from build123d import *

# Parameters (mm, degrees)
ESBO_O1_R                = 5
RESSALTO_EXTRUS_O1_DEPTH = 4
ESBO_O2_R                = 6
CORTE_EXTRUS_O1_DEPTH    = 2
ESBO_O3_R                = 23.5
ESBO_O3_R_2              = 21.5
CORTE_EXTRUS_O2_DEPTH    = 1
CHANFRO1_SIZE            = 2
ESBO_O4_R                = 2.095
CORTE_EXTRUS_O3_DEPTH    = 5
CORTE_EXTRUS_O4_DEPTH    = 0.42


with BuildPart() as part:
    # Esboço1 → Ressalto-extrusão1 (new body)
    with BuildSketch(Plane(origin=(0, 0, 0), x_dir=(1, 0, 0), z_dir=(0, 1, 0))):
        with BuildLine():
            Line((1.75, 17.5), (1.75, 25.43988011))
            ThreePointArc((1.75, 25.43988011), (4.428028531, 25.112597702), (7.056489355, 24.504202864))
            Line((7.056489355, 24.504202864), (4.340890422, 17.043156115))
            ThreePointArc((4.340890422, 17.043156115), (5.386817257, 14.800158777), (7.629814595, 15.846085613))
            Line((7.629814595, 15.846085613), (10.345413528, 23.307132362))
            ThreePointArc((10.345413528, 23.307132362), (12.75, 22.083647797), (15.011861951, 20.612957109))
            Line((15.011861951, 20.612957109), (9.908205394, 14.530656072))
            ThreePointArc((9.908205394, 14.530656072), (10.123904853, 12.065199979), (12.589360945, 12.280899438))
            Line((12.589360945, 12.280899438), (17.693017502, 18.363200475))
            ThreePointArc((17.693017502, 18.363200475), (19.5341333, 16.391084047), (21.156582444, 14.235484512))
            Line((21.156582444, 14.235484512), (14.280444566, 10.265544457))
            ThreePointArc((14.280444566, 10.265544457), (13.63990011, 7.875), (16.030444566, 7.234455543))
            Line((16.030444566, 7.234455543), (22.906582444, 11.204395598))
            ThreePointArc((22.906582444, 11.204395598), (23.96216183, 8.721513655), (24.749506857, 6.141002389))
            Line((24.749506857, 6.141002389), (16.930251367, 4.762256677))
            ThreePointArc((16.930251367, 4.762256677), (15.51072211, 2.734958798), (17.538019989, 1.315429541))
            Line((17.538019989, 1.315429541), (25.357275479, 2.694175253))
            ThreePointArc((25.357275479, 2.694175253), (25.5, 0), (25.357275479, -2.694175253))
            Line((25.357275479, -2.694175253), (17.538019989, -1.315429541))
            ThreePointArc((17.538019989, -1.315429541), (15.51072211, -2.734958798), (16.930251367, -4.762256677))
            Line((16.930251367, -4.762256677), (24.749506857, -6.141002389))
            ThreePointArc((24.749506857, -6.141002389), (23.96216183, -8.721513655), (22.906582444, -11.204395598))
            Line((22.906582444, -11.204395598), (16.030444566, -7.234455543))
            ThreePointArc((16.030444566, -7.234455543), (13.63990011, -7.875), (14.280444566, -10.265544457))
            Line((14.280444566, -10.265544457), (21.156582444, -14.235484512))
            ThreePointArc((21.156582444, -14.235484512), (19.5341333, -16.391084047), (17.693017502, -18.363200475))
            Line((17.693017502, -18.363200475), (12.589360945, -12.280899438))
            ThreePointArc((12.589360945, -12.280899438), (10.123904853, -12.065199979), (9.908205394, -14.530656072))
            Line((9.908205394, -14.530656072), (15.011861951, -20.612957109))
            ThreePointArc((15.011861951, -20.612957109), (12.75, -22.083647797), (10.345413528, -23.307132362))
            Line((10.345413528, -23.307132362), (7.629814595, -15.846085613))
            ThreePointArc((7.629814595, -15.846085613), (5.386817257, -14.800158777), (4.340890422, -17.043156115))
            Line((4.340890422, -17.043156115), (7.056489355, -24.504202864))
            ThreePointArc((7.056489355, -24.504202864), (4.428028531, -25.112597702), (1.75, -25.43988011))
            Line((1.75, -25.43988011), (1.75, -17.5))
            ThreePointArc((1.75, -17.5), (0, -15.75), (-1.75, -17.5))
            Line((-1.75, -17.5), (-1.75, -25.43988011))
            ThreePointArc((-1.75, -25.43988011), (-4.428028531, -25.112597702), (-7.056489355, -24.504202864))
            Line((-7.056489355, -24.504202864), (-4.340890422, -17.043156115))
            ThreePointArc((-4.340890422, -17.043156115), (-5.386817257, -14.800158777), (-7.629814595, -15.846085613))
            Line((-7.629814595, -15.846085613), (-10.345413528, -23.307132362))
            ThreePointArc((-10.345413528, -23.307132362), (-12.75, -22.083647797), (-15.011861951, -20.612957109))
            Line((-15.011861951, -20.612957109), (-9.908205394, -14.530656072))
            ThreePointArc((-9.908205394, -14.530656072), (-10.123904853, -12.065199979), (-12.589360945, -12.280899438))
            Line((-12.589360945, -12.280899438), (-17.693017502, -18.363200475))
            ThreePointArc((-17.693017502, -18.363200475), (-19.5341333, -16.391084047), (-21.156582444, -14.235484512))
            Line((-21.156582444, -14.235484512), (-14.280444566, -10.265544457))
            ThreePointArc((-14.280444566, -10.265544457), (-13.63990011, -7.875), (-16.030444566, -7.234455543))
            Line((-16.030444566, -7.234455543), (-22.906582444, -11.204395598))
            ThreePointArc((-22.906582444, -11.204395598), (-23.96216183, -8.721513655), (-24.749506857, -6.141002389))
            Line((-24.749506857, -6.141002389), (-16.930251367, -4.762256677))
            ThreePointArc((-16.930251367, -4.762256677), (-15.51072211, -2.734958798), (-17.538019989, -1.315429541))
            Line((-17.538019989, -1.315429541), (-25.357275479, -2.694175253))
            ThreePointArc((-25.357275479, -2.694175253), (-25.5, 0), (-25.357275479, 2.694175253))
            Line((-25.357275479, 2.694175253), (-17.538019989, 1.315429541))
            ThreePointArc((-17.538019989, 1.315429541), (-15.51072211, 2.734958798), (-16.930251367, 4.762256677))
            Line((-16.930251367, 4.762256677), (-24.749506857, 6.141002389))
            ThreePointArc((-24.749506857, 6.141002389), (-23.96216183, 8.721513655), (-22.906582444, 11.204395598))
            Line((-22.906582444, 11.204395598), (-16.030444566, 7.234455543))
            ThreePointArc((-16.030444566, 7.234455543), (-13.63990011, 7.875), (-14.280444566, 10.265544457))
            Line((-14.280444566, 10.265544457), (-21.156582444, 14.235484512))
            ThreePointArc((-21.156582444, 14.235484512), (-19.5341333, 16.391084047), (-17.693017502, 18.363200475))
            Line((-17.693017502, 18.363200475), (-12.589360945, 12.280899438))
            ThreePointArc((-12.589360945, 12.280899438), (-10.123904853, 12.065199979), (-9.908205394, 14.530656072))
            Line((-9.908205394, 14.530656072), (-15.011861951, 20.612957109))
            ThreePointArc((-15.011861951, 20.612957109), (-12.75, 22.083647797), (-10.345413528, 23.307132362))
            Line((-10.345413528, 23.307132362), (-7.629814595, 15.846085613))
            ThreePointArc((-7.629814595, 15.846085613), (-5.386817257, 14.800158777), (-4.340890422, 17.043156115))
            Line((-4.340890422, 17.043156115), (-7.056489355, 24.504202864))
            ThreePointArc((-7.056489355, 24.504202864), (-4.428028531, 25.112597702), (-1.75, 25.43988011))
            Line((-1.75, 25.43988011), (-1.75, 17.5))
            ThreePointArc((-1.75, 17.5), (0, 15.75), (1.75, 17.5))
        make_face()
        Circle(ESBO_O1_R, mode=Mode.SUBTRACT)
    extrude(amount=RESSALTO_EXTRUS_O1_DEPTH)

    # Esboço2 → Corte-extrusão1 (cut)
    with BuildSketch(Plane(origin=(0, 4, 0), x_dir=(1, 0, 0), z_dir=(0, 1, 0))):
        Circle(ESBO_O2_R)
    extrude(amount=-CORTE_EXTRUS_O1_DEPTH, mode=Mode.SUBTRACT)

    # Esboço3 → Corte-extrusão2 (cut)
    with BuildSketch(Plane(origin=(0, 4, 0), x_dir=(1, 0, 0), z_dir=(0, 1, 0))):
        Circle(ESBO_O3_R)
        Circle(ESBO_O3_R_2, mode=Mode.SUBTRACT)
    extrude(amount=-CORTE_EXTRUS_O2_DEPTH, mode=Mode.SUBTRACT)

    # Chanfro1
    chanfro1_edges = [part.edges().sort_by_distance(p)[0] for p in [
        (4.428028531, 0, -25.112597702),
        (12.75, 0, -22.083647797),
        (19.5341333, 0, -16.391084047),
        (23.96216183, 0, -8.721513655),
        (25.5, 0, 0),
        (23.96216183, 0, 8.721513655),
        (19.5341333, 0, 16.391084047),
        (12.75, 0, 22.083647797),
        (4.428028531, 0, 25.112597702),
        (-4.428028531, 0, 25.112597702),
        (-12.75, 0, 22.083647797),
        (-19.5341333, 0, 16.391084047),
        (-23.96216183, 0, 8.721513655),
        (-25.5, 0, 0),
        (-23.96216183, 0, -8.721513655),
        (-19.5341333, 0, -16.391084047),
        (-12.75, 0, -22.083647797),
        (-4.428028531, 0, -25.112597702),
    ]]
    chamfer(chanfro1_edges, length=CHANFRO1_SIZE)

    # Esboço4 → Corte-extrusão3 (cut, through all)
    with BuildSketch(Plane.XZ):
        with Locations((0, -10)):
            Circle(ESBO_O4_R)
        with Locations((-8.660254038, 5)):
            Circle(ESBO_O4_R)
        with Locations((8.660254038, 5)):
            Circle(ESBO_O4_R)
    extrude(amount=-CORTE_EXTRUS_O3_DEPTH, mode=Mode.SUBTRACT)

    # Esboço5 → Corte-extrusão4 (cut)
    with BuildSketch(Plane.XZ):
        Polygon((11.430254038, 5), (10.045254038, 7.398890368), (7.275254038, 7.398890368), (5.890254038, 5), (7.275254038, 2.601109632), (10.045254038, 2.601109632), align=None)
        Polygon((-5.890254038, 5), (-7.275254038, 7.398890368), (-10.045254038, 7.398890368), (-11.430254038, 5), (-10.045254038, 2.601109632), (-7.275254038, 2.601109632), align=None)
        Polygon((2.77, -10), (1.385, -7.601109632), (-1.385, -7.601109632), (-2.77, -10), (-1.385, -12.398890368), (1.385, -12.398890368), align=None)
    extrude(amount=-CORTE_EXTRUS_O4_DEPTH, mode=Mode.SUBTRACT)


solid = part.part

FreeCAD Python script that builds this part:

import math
import FreeCAD as App
import Part
import Sketcher
Q = App.Units.Quantity


def edges_at(feature, points):
    """Names of the edges that pass closest to the given points."""
    edges = feature.Shape.Edges
    near = lambda p: min(range(len(edges)), key=lambda i: edges[i].distToShape(Part.Vertex(*p))[0])
    return sorted({f"Edge{near(p) + 1}" for p in points})

doc = App.newDocument("Part")
body = doc.addObject("PartDesign::Body", "Body")

# Sketch on XZ plane
sketch1 = doc.addObject("Sketcher::SketchObject", "Sketch")
body.addObject(sketch1)
sketch1.AttachmentSupport = (doc.XZ_Plane, [""])
sketch1.MapMode = "FlatFace"
sketch1.addGeometry(Part.LineSegment(App.Vector(1.75, -25.43988, 0), App.Vector(1.75, -17.5, 0)), False)
sketch1.addGeometry(Part.ArcOfCircle(Part.Circle(App.Vector(0, -17.5, 0), App.Vector(0, 0, 1), 1.75), math.radians(0), math.radians(180)), False)
sketch1.addGeometry(Part.LineSegment(App.Vector(-1.75, -17.5, 0), App.Vector(-1.75, -25.43988, 0)), False)
sketch1.addGeometry(Part.ArcOfCircle(Part.Circle(App.Vector(0, 0, 0), App.Vector(0, 0, 1), 25.5), math.radians(-106.064844), math.radians(-93.935156)), False)
sketch1.addGeometry(Part.LineSegment(App.Vector(-7.056489, -24.504203, 0), App.Vector(-4.34089, -17.043156, 0)), False)
sketch1.addGeometry(Part.ArcOfCircle(Part.Circle(App.Vector(-5.985353, -16.444621, 0), App.Vector(0, 0, 1), 1.75), math.radians(-20), math.radians(160)), False)
sketch1.addGeometry(Part.LineSegment(App.Vector(-7.629815, -15.846086, 0), App.Vector(-10.345414, -23.307132, 0)), False)
sketch1.addGeometry(Part.ArcOfCircle(Part.Circle(App.Vector(0, 0, 0), App.Vector(0, 0, 1), 25.5), math.radians(-126.064844), math.radians(-113.935156)), False)
sketch1.addGeometry(Part.LineSegment(App.Vector(-15.011862, -20.612957, 0), App.Vector(-9.908205, -14.530656, 0)), False)
sketch1.addGeometry(Part.ArcOfCircle(Part.Circle(App.Vector(-11.248783, -13.405778, 0), App.Vector(0, 0, 1), 1.75), math.radians(-40), math.radians(140)), False)
sketch1.addGeometry(Part.LineSegment(App.Vector(-12.589361, -12.280899, 0), App.Vector(-17.693018, -18.3632, 0)), False)
sketch1.addGeometry(Part.ArcOfCircle(Part.Circle(App.Vector(0, 0, 0), App.Vector(0, 0, 1), 25.5), math.radians(-146.064844), math.radians(-133.935156)), False)
sketch1.addGeometry(Part.LineSegment(App.Vector(-21.156582, -14.235485, 0), App.Vector(-14.280445, -10.265544, 0)), False)
sketch1.addGeometry(Part.ArcOfCircle(Part.Circle(App.Vector(-15.155445, -8.75, 0), App.Vector(0, 0, 1), 1.75), math.radians(-60), math.radians(120)), False)
sketch1.addGeometry(Part.LineSegment(App.Vector(-16.030445, -7.234456, 0), App.Vector(-22.906582, -11.204396, 0)), False)
sketch1.addGeometry(Part.ArcOfCircle(Part.Circle(App.Vector(0, 0, 0), App.Vector(0, 0, 1), 25.5), math.radians(-166.064844), math.radians(-153.935156)), False)
sketch1.addGeometry(Part.LineSegment(App.Vector(-24.749507, -6.141002, 0), App.Vector(-16.930251, -4.762257, 0)), False)
sketch1.addGeometry(Part.ArcOfCircle(Part.Circle(App.Vector(-17.234136, -3.038843, 0), App.Vector(0, 0, 1), 1.75), math.radians(-80), math.radians(100)), False)
sketch1.addGeometry(Part.LineSegment(App.Vector(-17.53802, -1.31543, 0), App.Vector(-25.357275, -2.694175, 0)), False)
sketch1.addGeometry(Part.ArcOfCircle(Part.Circle(App.Vector(0, 0, 0), App.Vector(0, 0, 1), 25.5), math.radians(173.935156), math.radians(186.064844)), False)
sketch1.addGeometry(Part.LineSegment(App.Vector(-25.357275, 2.694175, 0), App.Vector(-17.53802, 1.31543, 0)), False)
sketch1.addGeometry(Part.ArcOfCircle(Part.Circle(App.Vector(-17.234136, 3.038843, 0), App.Vector(0, 0, 1), 1.75), math.radians(-100), math.radians(80)), False)
sketch1.addGeometry(Part.LineSegment(App.Vector(-16.930251, 4.762257, 0), App.Vector(-24.749507, 6.141002, 0)), False)
sketch1.addGeometry(Part.ArcOfCircle(Part.Circle(App.Vector(0, 0, 0), App.Vector(0, 0, 1), 25.5), math.radians(153.935156), math.radians(166.064844)), False)
sketch1.addGeometry(Part.LineSegment(App.Vector(-22.906582, 11.204396, 0), App.Vector(-16.030445, 7.234456, 0)), False)
sketch1.addGeometry(Part.ArcOfCircle(Part.Circle(App.Vector(-15.155445, 8.75, 0), App.Vector(0, 0, 1), 1.75), math.radians(-120), math.radians(60)), False)
sketch1.addGeometry(Part.LineSegment(App.Vector(-14.280445, 10.265544, 0), App.Vector(-21.156582, 14.235485, 0)), False)
sketch1.addGeometry(Part.ArcOfCircle(Part.Circle(App.Vector(0, 0, 0), App.Vector(0, 0, 1), 25.5), math.radians(133.935156), math.radians(146.064844)), False)
sketch1.addGeometry(Part.LineSegment(App.Vector(-17.693018, 18.3632, 0), App.Vector(-12.589361, 12.280899, 0)), False)
sketch1.addGeometry(Part.ArcOfCircle(Part.Circle(App.Vector(-11.248783, 13.405778, 0), App.Vector(0, 0, 1), 1.75), math.radians(-140), math.radians(40)), False)
sketch1.addGeometry(Part.LineSegment(App.Vector(-9.908205, 14.530656, 0), App.Vector(-15.011862, 20.612957, 0)), False)
sketch1.addGeometry(Part.ArcOfCircle(Part.Circle(App.Vector(0, 0, 0), App.Vector(0, 0, 1), 25.5), math.radians(113.935156), math.radians(126.064844)), False)
sketch1.addGeometry(Part.LineSegment(App.Vector(-10.345414, 23.307132, 0), App.Vector(-7.629815, 15.846086, 0)), False)
sketch1.addGeometry(Part.ArcOfCircle(Part.Circle(App.Vector(-5.985353, 16.444621, 0), App.Vector(0, 0, 1), 1.75), math.radians(-160), math.radians(20)), False)
sketch1.addGeometry(Part.LineSegment(App.Vector(-4.34089, 17.043156, 0), App.Vector(-7.056489, 24.504203, 0)), False)
sketch1.addGeometry(Part.ArcOfCircle(Part.Circle(App.Vector(0, 0, 0), App.Vector(0, 0, 1), 25.5), math.radians(93.935156), math.radians(106.064844)), False)
sketch1.addGeometry(Part.LineSegment(App.Vector(-1.75, 25.43988, 0), App.Vector(-1.75, 17.5, 0)), False)
sketch1.addGeometry(Part.ArcOfCircle(Part.Circle(App.Vector(0, 17.5, 0), App.Vector(0, 0, 1), 1.75), math.radians(180), math.radians(360)), False)
sketch1.addGeometry(Part.LineSegment(App.Vector(1.75, 17.5, 0), App.Vector(1.75, 25.43988, 0)), False)
sketch1.addGeometry(Part.ArcOfCircle(Part.Circle(App.Vector(0, 0, 0), App.Vector(0, 0, 1), 25.5), math.radians(73.935156), math.radians(86.064844)), False)
sketch1.addGeometry(Part.LineSegment(App.Vector(7.056489, 24.504203, 0), App.Vector(4.34089, 17.043156, 0)), False)
sketch1.addGeometry(Part.ArcOfCircle(Part.Circle(App.Vector(5.985353, 16.444621, 0), App.Vector(0, 0, 1), 1.75), math.radians(160), math.radians(340)), False)
sketch1.addGeometry(Part.LineSegment(App.Vector(7.629815, 15.846086, 0), App.Vector(10.345414, 23.307132, 0)), False)
sketch1.addGeometry(Part.ArcOfCircle(Part.Circle(App.Vector(0, 0, 0), App.Vector(0, 0, 1), 25.5), math.radians(53.935156), math.radians(66.064844)), False)
sketch1.addGeometry(Part.LineSegment(App.Vector(15.011862, 20.612957, 0), App.Vector(9.908205, 14.530656, 0)), False)
sketch1.addGeometry(Part.ArcOfCircle(Part.Circle(App.Vector(11.248783, 13.405778, 0), App.Vector(0, 0, 1), 1.75), math.radians(140), math.radians(320)), False)
sketch1.addGeometry(Part.LineSegment(App.Vector(12.589361, 12.280899, 0), App.Vector(17.693018, 18.3632, 0)), False)
sketch1.addGeometry(Part.ArcOfCircle(Part.Circle(App.Vector(0, 0, 0), App.Vector(0, 0, 1), 25.5), math.radians(33.935156), math.radians(46.064844)), False)
sketch1.addGeometry(Part.LineSegment(App.Vector(21.156582, 14.235485, 0), App.Vector(14.280445, 10.265544, 0)), False)
sketch1.addGeometry(Part.ArcOfCircle(Part.Circle(App.Vector(15.155445, 8.75, 0), App.Vector(0, 0, 1), 1.75), math.radians(120), math.radians(300)), False)
sketch1.addGeometry(Part.LineSegment(App.Vector(16.030445, 7.234456, 0), App.Vector(22.906582, 11.204396, 0)), False)
sketch1.addGeometry(Part.ArcOfCircle(Part.Circle(App.Vector(0, 0, 0), App.Vector(0, 0, 1), 25.5), math.radians(13.935156), math.radians(26.064844)), False)
sketch1.addGeometry(Part.LineSegment(App.Vector(24.749507, 6.141002, 0), App.Vector(16.930251, 4.762257, 0)), False)
sketch1.addGeometry(Part.ArcOfCircle(Part.Circle(App.Vector(17.234136, 3.038843, 0), App.Vector(0, 0, 1), 1.75), math.radians(100), math.radians(280)), False)
sketch1.addGeometry(Part.LineSegment(App.Vector(17.53802, 1.31543, 0), App.Vector(25.357275, 2.694175, 0)), False)
sketch1.addGeometry(Part.ArcOfCircle(Part.Circle(App.Vector(0, 0, 0), App.Vector(0, 0, 1), 25.5), math.radians(-6.064844), math.radians(6.064844)), False)
sketch1.addGeometry(Part.LineSegment(App.Vector(25.357275, -2.694175, 0), App.Vector(17.53802, -1.31543, 0)), False)
sketch1.addGeometry(Part.ArcOfCircle(Part.Circle(App.Vector(17.234136, -3.038843, 0), App.Vector(0, 0, 1), 1.75), math.radians(80), math.radians(260)), False)
sketch1.addGeometry(Part.LineSegment(App.Vector(16.930251, -4.762257, 0), App.Vector(24.749507, -6.141002, 0)), False)
sketch1.addGeometry(Part.ArcOfCircle(Part.Circle(App.Vector(0, 0, 0), App.Vector(0, 0, 1), 25.5), math.radians(-26.064844), math.radians(-13.935156)), False)
sketch1.addGeometry(Part.LineSegment(App.Vector(22.906582, -11.204396, 0), App.Vector(16.030445, -7.234456, 0)), False)
sketch1.addGeometry(Part.ArcOfCircle(Part.Circle(App.Vector(15.155445, -8.75, 0), App.Vector(0, 0, 1), 1.75), math.radians(60), math.radians(240)), False)
sketch1.addGeometry(Part.LineSegment(App.Vector(14.280445, -10.265544, 0), App.Vector(21.156582, -14.235485, 0)), False)
sketch1.addGeometry(Part.ArcOfCircle(Part.Circle(App.Vector(0, 0, 0), App.Vector(0, 0, 1), 25.5), math.radians(-46.064844), math.radians(-33.935156)), False)
sketch1.addGeometry(Part.LineSegment(App.Vector(17.693018, -18.3632, 0), App.Vector(12.589361, -12.280899, 0)), False)
sketch1.addGeometry(Part.ArcOfCircle(Part.Circle(App.Vector(11.248783, -13.405778, 0), App.Vector(0, 0, 1), 1.75), math.radians(40), math.radians(220)), False)
sketch1.addGeometry(Part.LineSegment(App.Vector(9.908205, -14.530656, 0), App.Vector(15.011862, -20.612957, 0)), False)
sketch1.addGeometry(Part.ArcOfCircle(Part.Circle(App.Vector(0, 0, 0), App.Vector(0, 0, 1), 25.5), math.radians(-66.064844), math.radians(-53.935156)), False)
sketch1.addGeometry(Part.LineSegment(App.Vector(10.345414, -23.307132, 0), App.Vector(7.629815, -15.846086, 0)), False)
sketch1.addGeometry(Part.ArcOfCircle(Part.Circle(App.Vector(5.985353, -16.444621, 0), App.Vector(0, 0, 1), 1.75), math.radians(20), math.radians(200)), False)
sketch1.addGeometry(Part.LineSegment(App.Vector(4.34089, -17.043156, 0), App.Vector(7.056489, -24.504203, 0)), False)
sketch1.addGeometry(Part.ArcOfCircle(Part.Circle(App.Vector(0, 0, 0), App.Vector(0, 0, 1), 25.5), math.radians(-86.064844), math.radians(-73.935156)), False)
sketch1.addGeometry(Part.Circle(App.Vector(0, 0, 0), App.Vector(0, 0, 1), 5), False)
sketch1.addConstraint(Sketcher.Constraint("Tangent", 0, 2, 1, 1))
sketch1.addConstraint(Sketcher.Constraint("Tangent", 1, 2, 2, 1))
sketch1.addConstraint(Sketcher.Constraint("Coincident", 2, 2, 3, 2))
sketch1.addConstraint(Sketcher.Constraint("Coincident", 3, 1, 4, 1))
sketch1.addConstraint(Sketcher.Constraint("Tangent", 4, 2, 5, 1))
sketch1.addConstraint(Sketcher.Constraint("Tangent", 5, 2, 6, 1))
sketch1.addConstraint(Sketcher.Constraint("Coincident", 6, 2, 7, 2))
sketch1.addConstraint(Sketcher.Constraint("Coincident", 7, 1, 8, 1))
sketch1.addConstraint(Sketcher.Constraint("Tangent", 8, 2, 9, 1))
sketch1.addConstraint(Sketcher.Constraint("Tangent", 9, 2, 10, 1))
sketch1.addConstraint(Sketcher.Constraint("Coincident", 10, 2, 11, 2))
sketch1.addConstraint(Sketcher.Constraint("Coincident", 11, 1, 12, 1))
sketch1.addConstraint(Sketcher.Constraint("Tangent", 12, 2, 13, 1))
sketch1.addConstraint(Sketcher.Constraint("Tangent", 13, 2, 14, 1))
sketch1.addConstraint(Sketcher.Constraint("Coincident", 14, 2, 15, 2))
sketch1.addConstraint(Sketcher.Constraint("Coincident", 15, 1, 16, 1))
sketch1.addConstraint(Sketcher.Constraint("Tangent", 16, 2, 17, 1))
sketch1.addConstraint(Sketcher.Constraint("Tangent", 17, 2, 18, 1))
sketch1.addConstraint(Sketcher.Constraint("Coincident", 18, 2, 19, 2))
sketch1.addConstraint(Sketcher.Constraint("Coincident", 19, 1, 20, 1))
sketch1.addConstraint(Sketcher.Constraint("Tangent", 20, 2, 21, 1))
sketch1.addConstraint(Sketcher.Constraint("Tangent", 21, 2, 22, 1))
sketch1.addConstraint(Sketcher.Constraint("Coincident", 22, 2, 23, 2))
sketch1.addConstraint(Sketcher.Constraint("Coincident", 23, 1, 24, 1))
sketch1.addConstraint(Sketcher.Constraint("Tangent", 24, 2, 25, 1))
sketch1.addConstraint(Sketcher.Constraint("Tangent", 25, 2, 26, 1))
sketch1.addConstraint(Sketcher.Constraint("Coincident", 26, 2, 27, 2))
sketch1.addConstraint(Sketcher.Constraint("Coincident", 27, 1, 28, 1))
sketch1.addConstraint(Sketcher.Constraint("Tangent", 28, 2, 29, 1))
sketch1.addConstraint(Sketcher.Constraint("Tangent", 29, 2, 30, 1))
sketch1.addConstraint(Sketcher.Constraint("Coincident", 30, 2, 31, 2))
sketch1.addConstraint(Sketcher.Constraint("Coincident", 31, 1, 32, 1))
sketch1.addConstraint(Sketcher.Constraint("Tangent", 32, 2, 33, 1))
sketch1.addConstraint(Sketcher.Constraint("Tangent", 33, 2, 34, 1))
sketch1.addConstraint(Sketcher.Constraint("Coincident", 34, 2, 35, 2))
sketch1.addConstraint(Sketcher.Constraint("Coincident", 35, 1, 36, 1))
sketch1.addConstraint(Sketcher.Constraint("Tangent", 36, 2, 37, 1))
sketch1.addConstraint(Sketcher.Constraint("Tangent", 37, 2, 38, 1))
sketch1.addConstraint(Sketcher.Constraint("Coincident", 38, 2, 39, 2))
sketch1.addConstraint(Sketcher.Constraint("Coincident", 39, 1, 40, 1))
sketch1.addConstraint(Sketcher.Constraint("Tangent", 40, 2, 41, 1))
sketch1.addConstraint(Sketcher.Constraint("Tangent", 41, 2, 42, 1))
sketch1.addConstraint(Sketcher.Constraint("Coincident", 42, 2, 43, 2))
sketch1.addConstraint(Sketcher.Constraint("Coincident", 43, 1, 44, 1))
sketch1.addConstraint(Sketcher.Constraint("Tangent", 44, 2, 45, 1))
sketch1.addConstraint(Sketcher.Constraint("Tangent", 45, 2, 46, 1))
sketch1.addConstraint(Sketcher.Constraint("Coincident", 46, 2, 47, 2))
sketch1.addConstraint(Sketcher.Constraint("Coincident", 47, 1, 48, 1))
sketch1.addConstraint(Sketcher.Constraint("Tangent", 48, 2, 49, 1))
sketch1.addConstraint(Sketcher.Constraint("Tangent", 49, 2, 50, 1))
sketch1.addConstraint(Sketcher.Constraint("Coincident", 50, 2, 51, 2))
sketch1.addConstraint(Sketcher.Constraint("Coincident", 51, 1, 52, 1))
sketch1.addConstraint(Sketcher.Constraint("Tangent", 52, 2, 53, 1))
sketch1.addConstraint(Sketcher.Constraint("Tangent", 53, 2, 54, 1))
sketch1.addConstraint(Sketcher.Constraint("Coincident", 54, 2, 55, 2))
sketch1.addConstraint(Sketcher.Constraint("Coincident", 55, 1, 56, 1))
sketch1.addConstraint(Sketcher.Constraint("Tangent", 56, 2, 57, 1))
sketch1.addConstraint(Sketcher.Constraint("Tangent", 57, 2, 58, 1))
sketch1.addConstraint(Sketcher.Constraint("Coincident", 58, 2, 59, 2))
sketch1.addConstraint(Sketcher.Constraint("Coincident", 59, 1, 60, 1))
sketch1.addConstraint(Sketcher.Constraint("Tangent", 60, 2, 61, 1))
sketch1.addConstraint(Sketcher.Constraint("Tangent", 61, 2, 62, 1))
sketch1.addConstraint(Sketcher.Constraint("Coincident", 62, 2, 63, 2))
sketch1.addConstraint(Sketcher.Constraint("Coincident", 63, 1, 64, 1))
sketch1.addConstraint(Sketcher.Constraint("Tangent", 64, 2, 65, 1))
sketch1.addConstraint(Sketcher.Constraint("Tangent", 65, 2, 66, 1))
sketch1.addConstraint(Sketcher.Constraint("Coincident", 66, 2, 67, 2))
sketch1.addConstraint(Sketcher.Constraint("Coincident", 67, 1, 68, 1))
sketch1.addConstraint(Sketcher.Constraint("Tangent", 68, 2, 69, 1))
sketch1.addConstraint(Sketcher.Constraint("Tangent", 69, 2, 70, 1))
sketch1.addConstraint(Sketcher.Constraint("Coincident", 70, 2, 71, 2))
sketch1.addConstraint(Sketcher.Constraint("Coincident", 71, 1, 0, 1))
sketch1.addConstraint(Sketcher.Constraint("Vertical", 0))
sketch1.addConstraint(Sketcher.Constraint("Vertical", 2))
sketch1.addConstraint(Sketcher.Constraint("Vertical", 36))
sketch1.addConstraint(Sketcher.Constraint("Vertical", 38))
sketch1.addConstraint(Sketcher.Constraint("Coincident", 3, 3, -1, 1))
sketch1.addConstraint(Sketcher.Constraint("Coincident", 7, 3, -1, 1))
sketch1.addConstraint(Sketcher.Constraint("Coincident", 11, 3, -1, 1))
sketch1.addConstraint(Sketcher.Constraint("Coincident", 15, 3, -1, 1))
sketch1.addConstraint(Sketcher.Constraint("Coincident", 19, 3, -1, 1))
sketch1.addConstraint(Sketcher.Constraint("Coincident", 23, 3, -1, 1))
sketch1.addConstraint(Sketcher.Constraint("Coincident", 27, 3, -1, 1))
sketch1.addConstraint(Sketcher.Constraint("Coincident", 31, 3, -1, 1))
sketch1.addConstraint(Sketcher.Constraint("Coincident", 35, 3, -1, 1))
sketch1.addConstraint(Sketcher.Constraint("Coincident", 39, 3, -1, 1))
sketch1.addConstraint(Sketcher.Constraint("Coincident", 43, 3, -1, 1))
sketch1.addConstraint(Sketcher.Constraint("Coincident", 47, 3, -1, 1))
sketch1.addConstraint(Sketcher.Constraint("Coincident", 51, 3, -1, 1))
sketch1.addConstraint(Sketcher.Constraint("Coincident", 55, 3, -1, 1))
sketch1.addConstraint(Sketcher.Constraint("Coincident", 59, 3, -1, 1))
sketch1.addConstraint(Sketcher.Constraint("Coincident", 63, 3, -1, 1))
sketch1.addConstraint(Sketcher.Constraint("Coincident", 67, 3, -1, 1))
sketch1.addConstraint(Sketcher.Constraint("Coincident", 71, 3, -1, 1))
sketch1.addConstraint(Sketcher.Constraint("Coincident", 72, 3, -1, 1))
sketch1.addConstraint(Sketcher.Constraint("Equal", 1, 5))
sketch1.addConstraint(Sketcher.Constraint("Equal", 3, 7))
sketch1.addConstraint(Sketcher.Constraint("Equal", 5, 9))
sketch1.addConstraint(Sketcher.Constraint("Equal", 7, 11))
sketch1.addConstraint(Sketcher.Constraint("Equal", 9, 13))
sketch1.addConstraint(Sketcher.Constraint("Equal", 11, 15))
sketch1.addConstraint(Sketcher.Constraint("Equal", 13, 17))
sketch1.addConstraint(Sketcher.Constraint("Equal", 15, 19))
sketch1.addConstraint(Sketcher.Constraint("Equal", 17, 21))
sketch1.addConstraint(Sketcher.Constraint("Equal", 19, 23))
sketch1.addConstraint(Sketcher.Constraint("Equal", 21, 25))
sketch1.addConstraint(Sketcher.Constraint("Equal", 23, 27))
sketch1.addConstraint(Sketcher.Constraint("Equal", 25, 29))
sketch1.addConstraint(Sketcher.Constraint("Equal", 27, 31))
sketch1.addConstraint(Sketcher.Constraint("Equal", 29, 33))
sketch1.addConstraint(Sketcher.Constraint("Equal", 31, 35))
sketch1.addConstraint(Sketcher.Constraint("Equal", 33, 37))
sketch1.addConstraint(Sketcher.Constraint("Equal", 35, 39))
sketch1.addConstraint(Sketcher.Constraint("Equal", 37, 41))
sketch1.addConstraint(Sketcher.Constraint("Equal", 39, 43))
sketch1.addConstraint(Sketcher.Constraint("Equal", 41, 45))
sketch1.addConstraint(Sketcher.Constraint("Equal", 43, 47))
sketch1.addConstraint(Sketcher.Constraint("Equal", 45, 49))
sketch1.addConstraint(Sketcher.Constraint("Equal", 47, 51))
sketch1.addConstraint(Sketcher.Constraint("Equal", 49, 53))
sketch1.addConstraint(Sketcher.Constraint("Equal", 51, 55))
sketch1.addConstraint(Sketcher.Constraint("Equal", 53, 57))
sketch1.addConstraint(Sketcher.Constraint("Equal", 55, 59))
sketch1.addConstraint(Sketcher.Constraint("Equal", 57, 61))
sketch1.addConstraint(Sketcher.Constraint("Equal", 59, 63))
sketch1.addConstraint(Sketcher.Constraint("Equal", 61, 65))
sketch1.addConstraint(Sketcher.Constraint("Equal", 63, 67))
sketch1.addConstraint(Sketcher.Constraint("Equal", 65, 69))
sketch1.addConstraint(Sketcher.Constraint("Equal", 67, 71))
sketch1.addConstraint(Sketcher.Constraint("Symmetric", 1, 3, 37, 3, -1, 1))
sketch1.addConstraint(Sketcher.Constraint("Symmetric", 5, 3, 41, 3, -1, 1))
sketch1.addConstraint(Sketcher.Constraint("Symmetric", 9, 3, 45, 3, -1, 1))
sketch1.addConstraint(Sketcher.Constraint("Symmetric", 13, 3, 49, 3, -1, 1))
sketch1.addConstraint(Sketcher.Constraint("Symmetric", 17, 3, 53, 3, -1, 1))
sketch1.addConstraint(Sketcher.Constraint("Symmetric", 21, 3, 57, 3, -1, 1))
sketch1.addConstraint(Sketcher.Constraint("Symmetric", 25, 3, 61, 3, -1, 1))
sketch1.addConstraint(Sketcher.Constraint("Symmetric", 29, 3, 65, 3, -1, 1))
sketch1.addConstraint(Sketcher.Constraint("Symmetric", 33, 3, 69, 3, -1, 1))
sketch1.addConstraint(Sketcher.Constraint("Symmetric", 33, 3, 41, 3, -2))
sketch1.addConstraint(Sketcher.Constraint("Symmetric", 29, 3, 45, 3, -2))
sketch1.addConstraint(Sketcher.Constraint("Symmetric", 25, 3, 49, 3, -2))
sketch1.addConstraint(Sketcher.Constraint("Symmetric", 21, 3, 53, 3, -2))
sketch1.addConstraint(Sketcher.Constraint("PointOnObject", 1, 3, -2))
sketch1.addConstraint(Sketcher.Constraint("Parallel", 4, 6))
sketch1.addConstraint(Sketcher.Constraint("Parallel", 8, 10))
sketch1.addConstraint(Sketcher.Constraint("Parallel", 12, 14))
sketch1.addConstraint(Sketcher.Constraint("Parallel", 16, 18))
sketch1.addConstraint(Sketcher.Constraint("Parallel", 20, 22))
sketch1.addConstraint(Sketcher.Constraint("Parallel", 24, 26))
sketch1.addConstraint(Sketcher.Constraint("Parallel", 28, 30))
sketch1.addConstraint(Sketcher.Constraint("Parallel", 32, 34))
sketch1.addConstraint(Sketcher.Constraint("Parallel", 6, 40))
sketch1.addConstraint(Sketcher.Constraint("Parallel", 40, 42))
sketch1.addConstraint(Sketcher.Constraint("Parallel", 10, 44))
sketch1.addConstraint(Sketcher.Constraint("Parallel", 44, 46))
sketch1.addConstraint(Sketcher.Constraint("Parallel", 14, 48))
sketch1.addConstraint(Sketcher.Constraint("Parallel", 48, 50))
sketch1.addConstraint(Sketcher.Constraint("Parallel", 18, 52))
sketch1.addConstraint(Sketcher.Constraint("Parallel", 52, 54))
sketch1.addConstraint(Sketcher.Constraint("Parallel", 22, 56))
sketch1.addConstraint(Sketcher.Constraint("Parallel", 56, 58))
sketch1.addConstraint(Sketcher.Constraint("Parallel", 26, 60))
sketch1.addConstraint(Sketcher.Constraint("Parallel", 60, 62))
sketch1.addConstraint(Sketcher.Constraint("Parallel", 30, 64))
sketch1.addConstraint(Sketcher.Constraint("Parallel", 64, 66))
sketch1.addConstraint(Sketcher.Constraint("Parallel", 34, 68))
sketch1.addConstraint(Sketcher.Constraint("Parallel", 68, 70))
sketch1.addConstraint(Sketcher.Constraint("Horizontal", 34, 2, 39, 1))
sketch1.addConstraint(Sketcher.Constraint("Horizontal", 30, 2, 43, 1))
sketch1.addConstraint(Sketcher.Constraint("Horizontal", 26, 2, 47, 1))
sketch1.addConstraint(Sketcher.Constraint("Horizontal", 22, 2, 51, 1))
sketch1.addConstraint(Sketcher.Constraint("Equal", 4, 6))
sketch1.addConstraint(Sketcher.Constraint("Equal", 6, 8))
sketch1.addConstraint(Sketcher.Constraint("Equal", 8, 10))
sketch1.addConstraint(Sketcher.Constraint("Equal", 10, 12))
sketch1.addConstraint(Sketcher.Constraint("Equal", 12, 14))
sketch1.addConstraint(Sketcher.Constraint("Equal", 14, 16))
sketch1.addConstraint(Sketcher.Constraint("Equal", 16, 18))
sketch1.addConstraint(Sketcher.Constraint("Diameter", 72, 10.0))
sketch1.addConstraint(Sketcher.Constraint("Radius", 3, 25.5))
sketch1.addConstraint(Sketcher.Constraint("Angle", 4, Q("70 deg")))
sketch1.addConstraint(Sketcher.Constraint("Angle", 8, Q("50 deg")))
sketch1.addConstraint(Sketcher.Constraint("Angle", 12, Q("30 deg")))
sketch1.addConstraint(Sketcher.Constraint("Angle", 16, Q("10 deg")))
sketch1.addConstraint(Sketcher.Constraint("Radius", 1, 1.75))
sketch1.addConstraint(Sketcher.Constraint("DistanceY", 1, 3, -1, 1, 17.5))
sketch1.addConstraint(Sketcher.Constraint("DistanceY", 13, 3, -1, 1, 8.75))
pad1 = doc.addObject("PartDesign::Pad", "Pad")
body.addObject(pad1)
pad1.Profile = sketch1
pad1.Length = 4
pad1.Reversed = True

# Sketch on XZ plane
sketch2 = doc.addObject("Sketcher::SketchObject", "Sketch001")
body.addObject(sketch2)
sketch2.AttachmentSupport = (doc.XZ_Plane, [""])
sketch2.MapMode = "FlatFace"
sketch2.AttachmentOffset = App.Placement(App.Vector(0, 0, -4), App.Rotation())
sketch2.addGeometry(Part.Circle(App.Vector(0, 0, 0), App.Vector(0, 0, 1), 6), False)
sketch2.addConstraint(Sketcher.Constraint("Coincident", 0, 3, -1, 1))
sketch2.addConstraint(Sketcher.Constraint("Diameter", 0, 12.0))
pocket1 = doc.addObject("PartDesign::Pocket", "Pocket")
body.addObject(pocket1)
pocket1.Profile = sketch2
pocket1.Length = 2
pocket1.Reversed = True

# Sketch on XZ plane
sketch3 = doc.addObject("Sketcher::SketchObject", "Sketch002")
body.addObject(sketch3)
sketch3.AttachmentSupport = (doc.XZ_Plane, [""])
sketch3.MapMode = "FlatFace"
sketch3.AttachmentOffset = App.Placement(App.Vector(0, 0, -4), App.Rotation())
sketch3.addGeometry(Part.Circle(App.Vector(0, 0, 0), App.Vector(0, 0, 1), 23.5), False)
sketch3.addGeometry(Part.Circle(App.Vector(0, 0, 0), App.Vector(0, 0, 1), 21.5), False)
sketch3.addConstraint(Sketcher.Constraint("Coincident", 0, 3, -1, 1))
sketch3.addConstraint(Sketcher.Constraint("Coincident", 1, 3, -1, 1))
sketch3.addConstraint(Sketcher.Constraint("Diameter", 0, 47.0))
sketch3.addConstraint(Sketcher.Constraint("Diameter", 1, 43.0))
pocket2 = doc.addObject("PartDesign::Pocket", "Pocket001")
body.addObject(pocket2)
pocket2.Profile = sketch3
pocket2.Length = 1
pocket2.Reversed = True
doc.recompute()

chamfer = doc.addObject("PartDesign::Chamfer", "Chamfer")
body.addObject(chamfer)
chamfer.Base = (pocket2, edges_at(pocket2, [
    (4.428, 0, -25.113),
    (12.75, 0, -22.084),
    (19.534, 0, -16.391),
    (23.962, 0, -8.722),
    (25.5, 0, 0),
    (23.962, 0, 8.722),
    (19.534, 0, 16.391),
    (12.75, 0, 22.084),
    (4.428, 0, 25.113),
    (-4.428, 0, 25.113),
    (-12.75, 0, 22.084),
    (-19.534, 0, 16.391),
    (-23.962, 0, 8.722),
    (-25.5, 0, 0),
    (-23.962, 0, -8.722),
    (-19.534, 0, -16.391),
    (-12.75, 0, -22.084),
    (-4.428, 0, -25.113),
]))
chamfer.Size = 2

# Sketch on XZ plane
sketch4 = doc.addObject("Sketcher::SketchObject", "Sketch003")
body.addObject(sketch4)
sketch4.AttachmentSupport = (doc.XZ_Plane, [""])
sketch4.MapMode = "FlatFace"
sketch4.addGeometry(Part.Circle(App.Vector(0, -10, 0), App.Vector(0, 0, 1), 2.095), False)
sketch4.addGeometry(Part.Circle(App.Vector(-8.660254, 5, 0), App.Vector(0, 0, 1), 2.095), False)
sketch4.addGeometry(Part.Circle(App.Vector(8.660254, 5, 0), App.Vector(0, 0, 1), 2.095), False)
sketch4.addConstraint(Sketcher.Constraint("Equal", 0, 1))
sketch4.addConstraint(Sketcher.Constraint("Equal", 1, 2))
sketch4.addConstraint(Sketcher.Constraint("Symmetric", 1, 3, 2, 3, -2))
sketch4.addConstraint(Sketcher.Constraint("PointOnObject", 0, 3, -2))
sketch4.addConstraint(Sketcher.Constraint("Diameter", 0, 4.19))
sketch4.addConstraint(Sketcher.Constraint("DistanceY", 0, 3, -1, 1, 10.0))
sketch4.addConstraint(Sketcher.Constraint("DistanceY", -1, 1, 1, 3, 5.0))
sketch4.addConstraint(Sketcher.Constraint("DistanceX", 1, 3, 2, 3, 17.320508))
pocket3 = doc.addObject("PartDesign::Pocket", "Pocket002")
body.addObject(pocket3)
pocket3.Profile = sketch4
pocket3.Type = "ThroughAll"

# Sketch on XZ plane
sketch5 = doc.addObject("Sketcher::SketchObject", "Sketch004")
body.addObject(sketch5)
sketch5.AttachmentSupport = (doc.XZ_Plane, [""])
sketch5.MapMode = "FlatFace"
sketch5.addGeometry(Part.LineSegment(App.Vector(11.430254, 5, 0), App.Vector(10.045254, 7.39889, 0)), False)
sketch5.addGeometry(Part.LineSegment(App.Vector(10.045254, 7.39889, 0), App.Vector(7.275254, 7.39889, 0)), False)
sketch5.addGeometry(Part.LineSegment(App.Vector(7.275254, 7.39889, 0), App.Vector(5.890254, 5, 0)), False)
sketch5.addGeometry(Part.LineSegment(App.Vector(5.890254, 5, 0), App.Vector(7.275254, 2.60111, 0)), False)
sketch5.addGeometry(Part.LineSegment(App.Vector(7.275254, 2.60111, 0), App.Vector(10.045254, 2.60111, 0)), False)
sketch5.addGeometry(Part.LineSegment(App.Vector(10.045254, 2.60111, 0), App.Vector(11.430254, 5, 0)), False)
sketch5.addGeometry(Part.LineSegment(App.Vector(-5.890254, 5, 0), App.Vector(-7.275254, 7.39889, 0)), False)
sketch5.addGeometry(Part.LineSegment(App.Vector(-7.275254, 7.39889, 0), App.Vector(-10.045254, 7.39889, 0)), False)
sketch5.addGeometry(Part.LineSegment(App.Vector(-10.045254, 7.39889, 0), App.Vector(-11.430254, 5, 0)), False)
sketch5.addGeometry(Part.LineSegment(App.Vector(-11.430254, 5, 0), App.Vector(-10.045254, 2.60111, 0)), False)
sketch5.addGeometry(Part.LineSegment(App.Vector(-10.045254, 2.60111, 0), App.Vector(-7.275254, 2.60111, 0)), False)
sketch5.addGeometry(Part.LineSegment(App.Vector(-7.275254, 2.60111, 0), App.Vector(-5.890254, 5, 0)), False)
sketch5.addGeometry(Part.LineSegment(App.Vector(2.77, -10, 0), App.Vector(1.385, -7.60111, 0)), False)
sketch5.addGeometry(Part.LineSegment(App.Vector(1.385, -7.60111, 0), App.Vector(-1.385, -7.60111, 0)), False)
sketch5.addGeometry(Part.LineSegment(App.Vector(-1.385, -7.60111, 0), App.Vector(-2.77, -10, 0)), False)
sketch5.addGeometry(Part.LineSegment(App.Vector(-2.77, -10, 0), App.Vector(-1.385, -12.39889, 0)), False)
sketch5.addGeometry(Part.LineSegment(App.Vector(-1.385, -12.39889, 0), App.Vector(1.385, -12.39889, 0)), False)
sketch5.addGeometry(Part.LineSegment(App.Vector(1.385, -12.39889, 0), App.Vector(2.77, -10, 0)), False)
sketch5.addConstraint(Sketcher.Constraint("Coincident", 0, 2, 1, 1))
sketch5.addConstraint(Sketcher.Constraint("Coincident", 1, 2, 2, 1))
sketch5.addConstraint(Sketcher.Constraint("Coincident", 2, 2, 3, 1))
sketch5.addConstraint(Sketcher.Constraint("Coincident", 3, 2, 4, 1))
sketch5.addConstraint(Sketcher.Constraint("Coincident", 4, 2, 5, 1))
sketch5.addConstraint(Sketcher.Constraint("Coincident", 5, 2, 0, 1))
sketch5.addConstraint(Sketcher.Constraint("Coincident", 6, 2, 7, 1))
sketch5.addConstraint(Sketcher.Constraint("Coincident", 7, 2, 8, 1))
sketch5.addConstraint(Sketcher.Constraint("Coincident", 8, 2, 9, 1))
sketch5.addConstraint(Sketcher.Constraint("Coincident", 9, 2, 10, 1))
sketch5.addConstraint(Sketcher.Constraint("Coincident", 10, 2, 11, 1))
sketch5.addConstraint(Sketcher.Constraint("Coincident", 11, 2, 6, 1))
sketch5.addConstraint(Sketcher.Constraint("Coincident", 12, 2, 13, 1))
sketch5.addConstraint(Sketcher.Constraint("Coincident", 13, 2, 14, 1))
sketch5.addConstraint(Sketcher.Constraint("Coincident", 14, 2, 15, 1))
sketch5.addConstraint(Sketcher.Constraint("Coincident", 15, 2, 16, 1))
sketch5.addConstraint(Sketcher.Constraint("Coincident", 16, 2, 17, 1))
sketch5.addConstraint(Sketcher.Constraint("Coincident", 17, 2, 12, 1))
sketch5.addConstraint(Sketcher.Constraint("Horizontal", 1))
sketch5.addConstraint(Sketcher.Constraint("Horizontal", 4))
sketch5.addConstraint(Sketcher.Constraint("Horizontal", 7))
sketch5.addConstraint(Sketcher.Constraint("Horizontal", 10))
sketch5.addConstraint(Sketcher.Constraint("Horizontal", 13))
sketch5.addConstraint(Sketcher.Constraint("Horizontal", 16))
sketch5.addConstraint(Sketcher.Constraint("Symmetric", 1, 2, 6, 2, -2))
sketch5.addConstraint(Sketcher.Constraint("Symmetric", 5, 2, 8, 2, -2))
sketch5.addConstraint(Sketcher.Constraint("Symmetric", 4, 2, 9, 2, -2))
sketch5.addConstraint(Sketcher.Constraint("Symmetric", 2, 2, 11, 2, -2))
sketch5.addConstraint(Sketcher.Constraint("Symmetric", 14, 2, 17, 2, -2))
sketch5.addConstraint(Sketcher.Constraint("Parallel", 0, 3))
sketch5.addConstraint(Sketcher.Constraint("Parallel", 2, 5))
sketch5.addConstraint(Sketcher.Constraint("Parallel", 3, 6))
sketch5.addConstraint(Sketcher.Constraint("Parallel", 5, 8))
sketch5.addConstraint(Sketcher.Constraint("Parallel", 8, 11))
sketch5.addConstraint(Sketcher.Constraint("Parallel", 9, 12))
sketch5.addConstraint(Sketcher.Constraint("Parallel", 11, 14))
sketch5.addConstraint(Sketcher.Constraint("Parallel", 12, 15))
sketch5.addConstraint(Sketcher.Constraint("Parallel", 14, 17))
sketch5.addConstraint(Sketcher.Constraint("Horizontal", 2, 2, 5, 2))
sketch5.addConstraint(Sketcher.Constraint("Vertical", 1, 2, 3, 2))
sketch5.addConstraint(Sketcher.Constraint("Vertical", 13, 2, 15, 2))
sketch5.addConstraint(Sketcher.Constraint("Equal", 10, 13))
sketch5.addConstraint(Sketcher.Constraint("Equal", 11, 12))
sketch5.addConstraint(Sketcher.Constraint("Angle", 0, Q("120 deg")))
sketch5.addConstraint(Sketcher.Constraint("DistanceY", -1, 1, 2, 2, 5.0))
sketch5.addConstraint(Sketcher.Constraint("DistanceY", 14, 2, -1, 1, 10.0))
sketch5.addConstraint(Sketcher.Constraint("DistanceX", 1, 2, 1, 1, 2.77))
sketch5.addConstraint(Sketcher.Constraint("Distance", 0, 2.77))
sketch5.addConstraint(Sketcher.Constraint("DistanceX", 6, 2, 2, 2, 13.165508))
pocket4 = doc.addObject("PartDesign::Pocket", "Pocket003")
body.addObject(pocket4)
pocket4.Profile = sketch5
pocket4.Length = 0.42

doc.recompute()
